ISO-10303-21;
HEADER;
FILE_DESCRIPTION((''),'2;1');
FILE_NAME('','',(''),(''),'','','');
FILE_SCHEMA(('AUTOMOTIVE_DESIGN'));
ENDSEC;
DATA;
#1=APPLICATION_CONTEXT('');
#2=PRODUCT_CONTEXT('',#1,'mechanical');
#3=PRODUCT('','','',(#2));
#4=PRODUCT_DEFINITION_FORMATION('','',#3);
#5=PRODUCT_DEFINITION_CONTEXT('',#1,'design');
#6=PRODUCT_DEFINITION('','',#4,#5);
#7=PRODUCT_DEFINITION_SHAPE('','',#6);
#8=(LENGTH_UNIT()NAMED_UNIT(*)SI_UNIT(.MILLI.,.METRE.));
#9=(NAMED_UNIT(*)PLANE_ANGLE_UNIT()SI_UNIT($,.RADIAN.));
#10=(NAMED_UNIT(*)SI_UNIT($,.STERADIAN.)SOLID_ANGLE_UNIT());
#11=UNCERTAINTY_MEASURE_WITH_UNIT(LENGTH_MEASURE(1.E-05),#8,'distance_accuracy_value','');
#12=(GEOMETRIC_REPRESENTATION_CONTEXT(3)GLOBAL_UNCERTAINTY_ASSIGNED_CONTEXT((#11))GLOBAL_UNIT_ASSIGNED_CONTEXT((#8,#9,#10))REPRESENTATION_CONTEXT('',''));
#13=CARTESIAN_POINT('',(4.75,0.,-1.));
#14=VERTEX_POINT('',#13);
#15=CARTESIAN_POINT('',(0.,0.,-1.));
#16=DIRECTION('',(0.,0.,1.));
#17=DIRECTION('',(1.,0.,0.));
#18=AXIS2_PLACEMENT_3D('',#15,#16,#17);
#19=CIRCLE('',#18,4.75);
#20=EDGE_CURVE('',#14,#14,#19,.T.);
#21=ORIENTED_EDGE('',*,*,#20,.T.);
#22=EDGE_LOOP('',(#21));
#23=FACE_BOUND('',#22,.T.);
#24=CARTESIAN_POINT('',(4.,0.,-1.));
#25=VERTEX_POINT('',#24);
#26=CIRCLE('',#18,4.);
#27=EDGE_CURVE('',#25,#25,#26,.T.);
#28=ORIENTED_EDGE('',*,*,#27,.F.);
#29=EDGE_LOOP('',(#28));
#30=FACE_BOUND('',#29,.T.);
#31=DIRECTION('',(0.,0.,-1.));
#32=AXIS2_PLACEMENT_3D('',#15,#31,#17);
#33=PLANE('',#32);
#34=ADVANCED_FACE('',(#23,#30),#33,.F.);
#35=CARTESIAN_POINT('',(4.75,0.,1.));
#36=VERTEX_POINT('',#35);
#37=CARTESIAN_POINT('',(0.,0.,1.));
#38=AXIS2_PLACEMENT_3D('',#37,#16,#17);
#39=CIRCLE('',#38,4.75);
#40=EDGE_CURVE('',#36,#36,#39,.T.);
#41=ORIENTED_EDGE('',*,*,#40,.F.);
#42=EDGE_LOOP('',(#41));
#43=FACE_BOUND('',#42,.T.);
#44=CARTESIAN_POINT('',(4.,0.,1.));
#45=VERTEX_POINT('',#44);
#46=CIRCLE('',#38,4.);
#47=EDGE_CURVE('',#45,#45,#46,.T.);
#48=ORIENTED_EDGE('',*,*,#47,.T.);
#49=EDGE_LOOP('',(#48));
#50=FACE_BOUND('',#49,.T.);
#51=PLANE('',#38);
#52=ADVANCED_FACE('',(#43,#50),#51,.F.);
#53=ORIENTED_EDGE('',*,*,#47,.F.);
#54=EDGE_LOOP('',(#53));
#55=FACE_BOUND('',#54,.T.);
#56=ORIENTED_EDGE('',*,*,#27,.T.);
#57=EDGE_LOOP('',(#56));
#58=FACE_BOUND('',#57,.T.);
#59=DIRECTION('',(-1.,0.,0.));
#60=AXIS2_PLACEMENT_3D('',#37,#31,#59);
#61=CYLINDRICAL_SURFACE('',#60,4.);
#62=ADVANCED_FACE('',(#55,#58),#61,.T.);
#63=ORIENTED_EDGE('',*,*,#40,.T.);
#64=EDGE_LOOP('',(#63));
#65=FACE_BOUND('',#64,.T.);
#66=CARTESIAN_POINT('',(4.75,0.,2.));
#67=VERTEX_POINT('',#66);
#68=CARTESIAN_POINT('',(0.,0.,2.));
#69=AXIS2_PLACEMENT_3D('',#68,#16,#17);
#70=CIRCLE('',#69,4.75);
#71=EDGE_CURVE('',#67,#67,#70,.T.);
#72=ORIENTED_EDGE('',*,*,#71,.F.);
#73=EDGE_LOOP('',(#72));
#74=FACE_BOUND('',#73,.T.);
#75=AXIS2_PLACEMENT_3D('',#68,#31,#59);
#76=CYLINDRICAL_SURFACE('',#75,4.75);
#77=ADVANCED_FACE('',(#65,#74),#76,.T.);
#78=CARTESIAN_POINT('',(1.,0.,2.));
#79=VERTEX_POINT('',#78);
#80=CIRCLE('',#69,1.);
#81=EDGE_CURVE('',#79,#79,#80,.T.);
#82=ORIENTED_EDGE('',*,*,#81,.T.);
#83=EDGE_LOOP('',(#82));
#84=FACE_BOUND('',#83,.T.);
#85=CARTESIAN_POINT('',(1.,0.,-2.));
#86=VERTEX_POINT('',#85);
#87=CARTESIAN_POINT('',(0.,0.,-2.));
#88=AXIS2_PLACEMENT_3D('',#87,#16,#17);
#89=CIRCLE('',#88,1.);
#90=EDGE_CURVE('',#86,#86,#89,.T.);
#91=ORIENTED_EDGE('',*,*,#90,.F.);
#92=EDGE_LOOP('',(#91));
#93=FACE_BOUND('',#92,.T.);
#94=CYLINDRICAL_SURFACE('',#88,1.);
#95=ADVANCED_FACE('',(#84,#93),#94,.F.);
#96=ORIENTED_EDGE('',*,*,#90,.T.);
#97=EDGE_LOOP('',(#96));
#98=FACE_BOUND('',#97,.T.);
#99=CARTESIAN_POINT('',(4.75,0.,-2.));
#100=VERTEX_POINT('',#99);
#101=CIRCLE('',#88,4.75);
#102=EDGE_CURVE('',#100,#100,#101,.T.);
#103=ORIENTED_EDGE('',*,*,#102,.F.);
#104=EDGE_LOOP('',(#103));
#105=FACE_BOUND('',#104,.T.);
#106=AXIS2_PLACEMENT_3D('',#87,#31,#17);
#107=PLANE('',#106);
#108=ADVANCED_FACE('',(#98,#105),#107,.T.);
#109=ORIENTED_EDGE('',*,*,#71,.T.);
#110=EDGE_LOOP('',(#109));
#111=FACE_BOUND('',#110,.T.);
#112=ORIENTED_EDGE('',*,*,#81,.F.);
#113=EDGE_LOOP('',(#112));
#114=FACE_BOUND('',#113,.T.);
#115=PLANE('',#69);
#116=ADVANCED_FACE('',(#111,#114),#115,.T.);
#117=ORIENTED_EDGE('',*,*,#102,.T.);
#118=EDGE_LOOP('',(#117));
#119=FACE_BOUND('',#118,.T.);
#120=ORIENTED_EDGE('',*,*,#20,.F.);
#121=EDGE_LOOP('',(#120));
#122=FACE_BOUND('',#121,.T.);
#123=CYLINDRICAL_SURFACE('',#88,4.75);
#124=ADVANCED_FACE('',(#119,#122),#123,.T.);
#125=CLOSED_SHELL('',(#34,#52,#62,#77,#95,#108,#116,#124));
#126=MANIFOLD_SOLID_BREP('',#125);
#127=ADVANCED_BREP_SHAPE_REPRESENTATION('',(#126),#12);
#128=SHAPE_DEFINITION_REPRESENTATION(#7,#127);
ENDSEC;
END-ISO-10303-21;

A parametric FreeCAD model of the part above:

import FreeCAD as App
import Part
import Sketcher
from FreeCAD import Vector

doc = App.newDocument("Part")
body = doc.addObject("PartDesign::Body", "Body")

sketch1 = body.newObject("Sketcher::SketchObject", "Sketch")
sketch1.AttachmentSupport = (doc.getObject("XY_Plane"), [""])
sketch1.MapMode = "FlatFace"
sketch1.addGeometry(Part.Circle(Vector(0, 0, 0), Vector(0, 0, 1), 4), False)
sketch1.addConstraint([
    Sketcher.Constraint("Coincident", 0, 3, -1, 1),
    Sketcher.Constraint("Diameter", 0, 8.0),
])
pad1 = body.newObject("PartDesign::Pad", "Pad")
pad1.Profile = sketch1
pad1.Length = 2
pad1.Midplane = True

sketch2 = body.newObject("Sketcher::SketchObject", "Sketch001")
sketch2.AttachmentSupport = (doc.getObject("XY_Plane"), [""])
sketch2.MapMode = "FlatFace"
sketch2.AttachmentOffset = App.Placement(Vector(0, 0, 1), App.Rotation())
sketch2.addGeometry(Part.Circle(Vector(0, 0, 0), Vector(0, 0, 1), 4.8), False)
sketch2.addConstraint([
    Sketcher.Constraint("Coincident", 0, 3, -1, 1),
    Sketcher.Constraint("Diameter", 0, 9.5),
])
pad2 = body.newObject("PartDesign::Pad", "Pad001")
pad2.Profile = sketch2
pad2.Length = 1
doc.recompute()

mirrored = body.newObject("PartDesign::Mirrored", "Mirrored")
mirrored.Originals = [pad2]
mirrored.MirrorPlane = (doc.getObject("XY_Plane"), [""])
body.Tip = mirrored

sketch3 = body.newObject("Sketcher::SketchObject", "Sketch002")
sketch3.AttachmentSupport = (doc.getObject("XY_Plane"), [""])
sketch3.MapMode = "FlatFace"
sketch3.AttachmentOffset = App.Placement(Vector(0, 0, 2), App.Rotation())
sketch3.addGeometry(Part.Circle(Vector(0, 0, 0), Vector(0, 0, 1), 1), False)
sketch3.addConstraint([
    Sketcher.Constraint("Coincident", 0, 3, -1, 1),
    Sketcher.Constraint("Diameter", 0, 2.0),
])
pocket1 = body.newObject("PartDesign::Pocket", "Pocket")
pocket1.Profile = sketch3
pocket1.Type = "ThroughAll"

doc.recompute()
